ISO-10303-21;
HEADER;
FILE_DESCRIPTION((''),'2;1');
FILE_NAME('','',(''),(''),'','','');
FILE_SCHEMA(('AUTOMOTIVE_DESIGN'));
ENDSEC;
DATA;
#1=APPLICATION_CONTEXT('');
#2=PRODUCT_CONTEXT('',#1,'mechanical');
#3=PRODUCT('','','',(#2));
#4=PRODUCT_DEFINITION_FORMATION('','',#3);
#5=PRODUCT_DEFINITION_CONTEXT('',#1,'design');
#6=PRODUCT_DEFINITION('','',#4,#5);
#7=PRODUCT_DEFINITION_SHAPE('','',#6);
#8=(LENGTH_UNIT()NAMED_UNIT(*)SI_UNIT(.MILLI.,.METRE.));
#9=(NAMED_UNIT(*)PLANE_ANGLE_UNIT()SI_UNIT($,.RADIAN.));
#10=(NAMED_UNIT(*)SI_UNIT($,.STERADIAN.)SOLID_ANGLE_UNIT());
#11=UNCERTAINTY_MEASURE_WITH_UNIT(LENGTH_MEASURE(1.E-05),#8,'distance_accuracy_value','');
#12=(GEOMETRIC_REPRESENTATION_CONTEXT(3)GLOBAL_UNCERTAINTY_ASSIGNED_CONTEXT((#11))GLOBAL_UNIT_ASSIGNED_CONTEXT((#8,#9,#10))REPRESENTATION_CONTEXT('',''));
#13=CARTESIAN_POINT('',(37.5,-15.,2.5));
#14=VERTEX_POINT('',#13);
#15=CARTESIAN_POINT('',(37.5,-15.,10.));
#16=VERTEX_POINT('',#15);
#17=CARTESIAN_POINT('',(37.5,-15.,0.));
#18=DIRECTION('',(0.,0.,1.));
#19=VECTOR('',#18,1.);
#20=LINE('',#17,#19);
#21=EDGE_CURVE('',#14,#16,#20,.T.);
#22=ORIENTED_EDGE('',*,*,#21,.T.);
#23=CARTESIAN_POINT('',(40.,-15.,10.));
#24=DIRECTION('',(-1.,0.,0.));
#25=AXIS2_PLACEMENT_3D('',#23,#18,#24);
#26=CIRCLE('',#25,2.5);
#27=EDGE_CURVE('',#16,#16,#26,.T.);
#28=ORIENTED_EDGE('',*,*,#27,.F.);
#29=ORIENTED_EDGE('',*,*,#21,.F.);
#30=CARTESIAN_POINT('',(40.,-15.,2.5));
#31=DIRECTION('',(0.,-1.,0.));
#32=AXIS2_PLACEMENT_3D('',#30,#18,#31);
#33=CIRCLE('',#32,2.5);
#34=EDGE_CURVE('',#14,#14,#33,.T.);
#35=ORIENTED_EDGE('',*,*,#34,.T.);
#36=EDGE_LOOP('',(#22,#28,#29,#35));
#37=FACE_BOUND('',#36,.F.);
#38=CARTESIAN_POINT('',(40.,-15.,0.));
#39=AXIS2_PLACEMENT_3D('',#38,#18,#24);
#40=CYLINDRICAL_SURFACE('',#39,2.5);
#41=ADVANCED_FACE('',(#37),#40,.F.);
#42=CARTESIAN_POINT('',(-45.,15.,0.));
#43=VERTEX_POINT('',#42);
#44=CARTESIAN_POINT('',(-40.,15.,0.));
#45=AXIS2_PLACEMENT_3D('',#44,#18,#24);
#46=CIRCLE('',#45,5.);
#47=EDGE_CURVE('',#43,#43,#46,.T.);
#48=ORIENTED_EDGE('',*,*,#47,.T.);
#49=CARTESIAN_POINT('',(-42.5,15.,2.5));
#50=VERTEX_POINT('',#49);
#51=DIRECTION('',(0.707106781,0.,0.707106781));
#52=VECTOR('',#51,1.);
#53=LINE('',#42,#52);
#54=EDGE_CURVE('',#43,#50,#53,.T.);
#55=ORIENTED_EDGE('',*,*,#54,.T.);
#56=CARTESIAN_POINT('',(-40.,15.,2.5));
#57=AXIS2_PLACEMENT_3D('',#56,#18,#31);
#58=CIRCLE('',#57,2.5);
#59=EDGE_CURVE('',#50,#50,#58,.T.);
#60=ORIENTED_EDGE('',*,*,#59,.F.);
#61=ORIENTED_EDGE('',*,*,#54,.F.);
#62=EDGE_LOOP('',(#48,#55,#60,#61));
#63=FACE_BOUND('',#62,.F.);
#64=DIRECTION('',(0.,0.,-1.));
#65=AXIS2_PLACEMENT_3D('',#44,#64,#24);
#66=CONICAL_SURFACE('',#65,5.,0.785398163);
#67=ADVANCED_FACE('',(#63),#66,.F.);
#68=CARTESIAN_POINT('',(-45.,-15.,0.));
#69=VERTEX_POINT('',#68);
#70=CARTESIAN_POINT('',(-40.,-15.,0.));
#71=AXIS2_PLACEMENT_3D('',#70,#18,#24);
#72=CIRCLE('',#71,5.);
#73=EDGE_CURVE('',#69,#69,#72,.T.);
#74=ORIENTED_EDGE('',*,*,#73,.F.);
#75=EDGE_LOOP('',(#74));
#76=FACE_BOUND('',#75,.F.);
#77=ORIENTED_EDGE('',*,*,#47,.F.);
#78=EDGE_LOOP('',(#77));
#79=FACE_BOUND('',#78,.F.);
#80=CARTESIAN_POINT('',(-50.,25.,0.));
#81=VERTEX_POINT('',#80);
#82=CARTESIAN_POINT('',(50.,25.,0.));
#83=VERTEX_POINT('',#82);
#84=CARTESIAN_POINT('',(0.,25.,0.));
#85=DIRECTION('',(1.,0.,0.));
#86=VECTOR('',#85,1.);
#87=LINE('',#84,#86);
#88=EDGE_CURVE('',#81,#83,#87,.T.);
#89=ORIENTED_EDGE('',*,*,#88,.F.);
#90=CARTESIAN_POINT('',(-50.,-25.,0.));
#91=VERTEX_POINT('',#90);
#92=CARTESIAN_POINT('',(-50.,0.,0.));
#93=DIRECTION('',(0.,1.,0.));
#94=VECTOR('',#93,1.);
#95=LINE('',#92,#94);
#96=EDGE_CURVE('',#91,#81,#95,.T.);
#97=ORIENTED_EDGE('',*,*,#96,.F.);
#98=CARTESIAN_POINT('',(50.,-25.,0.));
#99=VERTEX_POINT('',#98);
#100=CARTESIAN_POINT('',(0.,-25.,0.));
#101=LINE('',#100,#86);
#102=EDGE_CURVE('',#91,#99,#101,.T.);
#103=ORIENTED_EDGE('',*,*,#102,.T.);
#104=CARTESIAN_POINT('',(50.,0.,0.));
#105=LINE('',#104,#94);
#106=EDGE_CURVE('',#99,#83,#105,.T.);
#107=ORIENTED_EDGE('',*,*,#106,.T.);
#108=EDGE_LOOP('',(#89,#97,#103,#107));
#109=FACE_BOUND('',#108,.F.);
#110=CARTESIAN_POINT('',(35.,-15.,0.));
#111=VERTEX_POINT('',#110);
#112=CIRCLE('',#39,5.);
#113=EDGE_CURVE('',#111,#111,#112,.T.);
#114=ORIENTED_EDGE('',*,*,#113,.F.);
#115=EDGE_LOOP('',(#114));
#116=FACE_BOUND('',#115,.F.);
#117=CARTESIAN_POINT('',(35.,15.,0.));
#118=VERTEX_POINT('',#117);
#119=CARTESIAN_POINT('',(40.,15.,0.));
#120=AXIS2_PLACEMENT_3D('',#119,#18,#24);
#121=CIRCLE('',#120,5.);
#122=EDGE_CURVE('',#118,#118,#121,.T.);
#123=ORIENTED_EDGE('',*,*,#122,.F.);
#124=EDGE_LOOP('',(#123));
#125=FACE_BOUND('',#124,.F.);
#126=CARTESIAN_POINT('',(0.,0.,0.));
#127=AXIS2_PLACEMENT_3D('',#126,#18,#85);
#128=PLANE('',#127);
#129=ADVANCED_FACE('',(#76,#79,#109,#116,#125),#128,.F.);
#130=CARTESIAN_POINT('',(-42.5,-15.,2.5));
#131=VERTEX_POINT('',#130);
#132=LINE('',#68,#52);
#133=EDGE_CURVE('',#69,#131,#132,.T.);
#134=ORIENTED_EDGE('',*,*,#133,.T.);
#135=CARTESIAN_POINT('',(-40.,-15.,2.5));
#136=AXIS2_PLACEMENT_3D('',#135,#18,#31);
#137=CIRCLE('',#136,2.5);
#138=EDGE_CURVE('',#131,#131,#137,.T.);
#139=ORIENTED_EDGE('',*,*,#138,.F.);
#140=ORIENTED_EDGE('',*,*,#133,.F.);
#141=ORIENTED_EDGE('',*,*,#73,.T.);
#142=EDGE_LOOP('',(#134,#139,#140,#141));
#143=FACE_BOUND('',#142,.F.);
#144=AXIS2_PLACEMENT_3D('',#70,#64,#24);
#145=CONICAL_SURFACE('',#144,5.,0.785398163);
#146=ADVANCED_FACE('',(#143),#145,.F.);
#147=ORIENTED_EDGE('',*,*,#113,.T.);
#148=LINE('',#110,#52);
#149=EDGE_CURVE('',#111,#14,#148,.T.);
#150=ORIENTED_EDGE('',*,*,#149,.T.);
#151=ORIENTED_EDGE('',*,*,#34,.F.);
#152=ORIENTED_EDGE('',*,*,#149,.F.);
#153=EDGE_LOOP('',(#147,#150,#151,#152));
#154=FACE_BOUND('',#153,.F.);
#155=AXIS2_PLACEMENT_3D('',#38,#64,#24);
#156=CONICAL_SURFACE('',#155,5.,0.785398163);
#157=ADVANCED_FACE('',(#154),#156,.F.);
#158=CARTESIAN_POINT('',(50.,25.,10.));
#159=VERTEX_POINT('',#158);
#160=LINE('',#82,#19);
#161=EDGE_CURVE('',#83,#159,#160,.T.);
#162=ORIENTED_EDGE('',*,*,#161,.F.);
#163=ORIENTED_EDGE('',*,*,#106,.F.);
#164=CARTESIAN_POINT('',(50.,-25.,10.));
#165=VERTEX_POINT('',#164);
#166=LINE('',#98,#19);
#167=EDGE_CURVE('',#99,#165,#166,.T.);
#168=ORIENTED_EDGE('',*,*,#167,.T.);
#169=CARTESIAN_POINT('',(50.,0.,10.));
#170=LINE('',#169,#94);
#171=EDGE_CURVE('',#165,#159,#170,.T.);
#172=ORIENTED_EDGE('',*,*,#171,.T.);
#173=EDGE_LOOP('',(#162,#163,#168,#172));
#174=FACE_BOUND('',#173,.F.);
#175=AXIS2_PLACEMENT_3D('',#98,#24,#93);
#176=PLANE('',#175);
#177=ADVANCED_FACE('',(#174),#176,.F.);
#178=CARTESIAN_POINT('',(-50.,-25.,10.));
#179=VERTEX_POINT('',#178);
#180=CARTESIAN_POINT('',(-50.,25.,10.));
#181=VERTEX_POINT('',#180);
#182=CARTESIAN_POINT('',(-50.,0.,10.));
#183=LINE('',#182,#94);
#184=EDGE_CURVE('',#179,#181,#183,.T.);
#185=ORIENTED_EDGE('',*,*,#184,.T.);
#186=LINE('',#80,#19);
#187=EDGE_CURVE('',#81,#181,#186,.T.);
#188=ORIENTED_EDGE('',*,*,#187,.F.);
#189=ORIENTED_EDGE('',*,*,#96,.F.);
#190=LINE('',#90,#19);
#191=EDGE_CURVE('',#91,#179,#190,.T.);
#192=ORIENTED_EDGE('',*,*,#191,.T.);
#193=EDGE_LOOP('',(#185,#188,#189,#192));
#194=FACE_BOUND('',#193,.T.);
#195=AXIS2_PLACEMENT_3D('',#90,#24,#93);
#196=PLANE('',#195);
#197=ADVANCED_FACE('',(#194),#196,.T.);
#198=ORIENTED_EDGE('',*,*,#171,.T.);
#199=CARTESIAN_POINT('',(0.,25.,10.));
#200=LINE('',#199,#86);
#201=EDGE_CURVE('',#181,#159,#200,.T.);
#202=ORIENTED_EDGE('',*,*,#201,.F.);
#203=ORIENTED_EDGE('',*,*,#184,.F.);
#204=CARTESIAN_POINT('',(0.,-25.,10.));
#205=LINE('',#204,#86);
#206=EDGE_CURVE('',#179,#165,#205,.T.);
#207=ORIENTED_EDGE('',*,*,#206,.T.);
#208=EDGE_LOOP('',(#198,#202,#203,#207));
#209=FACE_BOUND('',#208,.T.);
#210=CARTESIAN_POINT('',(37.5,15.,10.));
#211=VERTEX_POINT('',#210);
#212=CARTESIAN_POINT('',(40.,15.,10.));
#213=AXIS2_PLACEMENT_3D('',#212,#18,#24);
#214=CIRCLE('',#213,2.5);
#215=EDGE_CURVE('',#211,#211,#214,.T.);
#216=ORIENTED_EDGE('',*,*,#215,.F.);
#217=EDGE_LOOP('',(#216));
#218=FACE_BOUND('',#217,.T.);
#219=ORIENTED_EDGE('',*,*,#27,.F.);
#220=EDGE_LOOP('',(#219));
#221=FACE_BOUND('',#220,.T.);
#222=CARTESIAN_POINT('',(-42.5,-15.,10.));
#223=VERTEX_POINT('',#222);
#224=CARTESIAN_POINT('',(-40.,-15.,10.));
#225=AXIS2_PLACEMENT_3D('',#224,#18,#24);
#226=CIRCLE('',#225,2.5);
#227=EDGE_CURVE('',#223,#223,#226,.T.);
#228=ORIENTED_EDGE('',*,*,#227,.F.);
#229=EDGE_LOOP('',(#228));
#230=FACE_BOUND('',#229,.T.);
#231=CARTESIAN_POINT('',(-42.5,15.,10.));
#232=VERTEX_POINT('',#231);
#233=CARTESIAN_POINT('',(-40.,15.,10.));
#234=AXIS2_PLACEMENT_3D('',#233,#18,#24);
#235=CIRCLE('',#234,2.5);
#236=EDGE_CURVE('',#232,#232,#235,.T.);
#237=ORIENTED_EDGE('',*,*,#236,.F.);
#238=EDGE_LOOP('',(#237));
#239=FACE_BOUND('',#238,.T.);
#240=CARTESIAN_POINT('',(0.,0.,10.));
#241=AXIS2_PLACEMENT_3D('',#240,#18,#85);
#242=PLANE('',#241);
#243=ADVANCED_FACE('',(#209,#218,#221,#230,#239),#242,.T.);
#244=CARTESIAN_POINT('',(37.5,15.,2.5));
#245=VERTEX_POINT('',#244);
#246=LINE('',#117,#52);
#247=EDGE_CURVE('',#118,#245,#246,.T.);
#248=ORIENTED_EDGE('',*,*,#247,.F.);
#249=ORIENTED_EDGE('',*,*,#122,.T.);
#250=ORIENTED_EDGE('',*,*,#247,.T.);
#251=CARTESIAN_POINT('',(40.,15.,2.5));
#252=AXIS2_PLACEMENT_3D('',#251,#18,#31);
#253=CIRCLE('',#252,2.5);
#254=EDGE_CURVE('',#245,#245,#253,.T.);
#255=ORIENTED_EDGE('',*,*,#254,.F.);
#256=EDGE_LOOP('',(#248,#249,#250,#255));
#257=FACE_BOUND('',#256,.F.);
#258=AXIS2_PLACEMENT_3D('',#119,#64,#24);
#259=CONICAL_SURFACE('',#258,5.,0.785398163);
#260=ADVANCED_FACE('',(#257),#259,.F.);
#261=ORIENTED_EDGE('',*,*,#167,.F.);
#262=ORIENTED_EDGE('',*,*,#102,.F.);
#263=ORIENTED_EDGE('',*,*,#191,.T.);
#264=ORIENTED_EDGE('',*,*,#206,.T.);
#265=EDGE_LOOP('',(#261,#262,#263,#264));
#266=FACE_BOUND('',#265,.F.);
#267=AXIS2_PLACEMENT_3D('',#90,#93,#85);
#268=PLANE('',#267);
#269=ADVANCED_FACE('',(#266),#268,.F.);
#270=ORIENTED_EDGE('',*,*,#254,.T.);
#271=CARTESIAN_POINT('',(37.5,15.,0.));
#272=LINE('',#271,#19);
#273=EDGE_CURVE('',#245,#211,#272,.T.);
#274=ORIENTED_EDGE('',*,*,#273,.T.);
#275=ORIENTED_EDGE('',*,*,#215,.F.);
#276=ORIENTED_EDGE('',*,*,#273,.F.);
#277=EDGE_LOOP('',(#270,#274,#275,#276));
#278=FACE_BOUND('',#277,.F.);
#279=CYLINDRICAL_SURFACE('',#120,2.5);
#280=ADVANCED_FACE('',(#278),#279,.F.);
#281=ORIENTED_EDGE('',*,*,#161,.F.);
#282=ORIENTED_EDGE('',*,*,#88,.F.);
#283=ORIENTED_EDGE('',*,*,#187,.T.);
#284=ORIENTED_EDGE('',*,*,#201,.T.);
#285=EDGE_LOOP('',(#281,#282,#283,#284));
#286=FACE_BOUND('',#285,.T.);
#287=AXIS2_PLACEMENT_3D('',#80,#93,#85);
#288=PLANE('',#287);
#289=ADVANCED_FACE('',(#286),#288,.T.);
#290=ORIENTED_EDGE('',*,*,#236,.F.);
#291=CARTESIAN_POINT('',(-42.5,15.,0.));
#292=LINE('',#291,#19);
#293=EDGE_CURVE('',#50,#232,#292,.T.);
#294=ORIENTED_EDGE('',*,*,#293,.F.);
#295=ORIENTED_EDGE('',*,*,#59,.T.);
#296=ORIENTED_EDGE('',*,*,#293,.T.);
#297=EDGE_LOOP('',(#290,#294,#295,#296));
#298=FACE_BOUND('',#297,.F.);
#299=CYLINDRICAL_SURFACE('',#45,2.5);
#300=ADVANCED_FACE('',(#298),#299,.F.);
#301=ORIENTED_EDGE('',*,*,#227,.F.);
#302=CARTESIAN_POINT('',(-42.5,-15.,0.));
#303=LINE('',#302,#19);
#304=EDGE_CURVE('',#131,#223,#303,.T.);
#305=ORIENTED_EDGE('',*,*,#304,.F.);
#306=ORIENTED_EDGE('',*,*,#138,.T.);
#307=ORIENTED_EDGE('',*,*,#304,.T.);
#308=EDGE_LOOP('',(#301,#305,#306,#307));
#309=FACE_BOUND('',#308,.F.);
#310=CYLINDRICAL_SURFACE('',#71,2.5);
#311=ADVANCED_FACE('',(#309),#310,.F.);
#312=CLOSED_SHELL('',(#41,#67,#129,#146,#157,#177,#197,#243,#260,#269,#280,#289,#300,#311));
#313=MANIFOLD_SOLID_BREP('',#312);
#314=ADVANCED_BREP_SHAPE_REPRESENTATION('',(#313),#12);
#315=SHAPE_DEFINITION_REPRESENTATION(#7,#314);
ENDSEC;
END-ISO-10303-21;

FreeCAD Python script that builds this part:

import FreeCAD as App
import Part
import Sketcher

V = App.Vector

doc = App.newDocument("Part")
body = doc.addObject("PartDesign::Body", "Body")

sketch1 = doc.addObject("Sketcher::SketchObject", "Sketch")
body.addObject(sketch1)
sketch1.AttachmentSupport = (doc.XY_Plane, [""])
sketch1.MapMode = "FlatFace"
sketch1.addGeometry(Part.LineSegment(V(-50, 25, 0), V(-50, -25, 0)), False)
sketch1.addGeometry(Part.LineSegment(V(-50, -25, 0), V(50, -25, 0)), False)
sketch1.addGeometry(Part.LineSegment(V(50, -25, 0), V(50, 25, 0)), False)
sketch1.addGeometry(Part.LineSegment(V(50, 25, 0), V(-50, 25, 0)), False)
sketch1.addConstraint(Sketcher.Constraint("Coincident", 0, 2, 1, 1))
sketch1.addConstraint(Sketcher.Constraint("Coincident", 1, 2, 2, 1))
sketch1.addConstraint(Sketcher.Constraint("Coincident", 2, 2, 3, 1))
sketch1.addConstraint(Sketcher.Constraint("Coincident", 3, 2, 0, 1))
sketch1.addConstraint(Sketcher.Constraint("Vertical", 0))
sketch1.addConstraint(Sketcher.Constraint("Horizontal", 1))
sketch1.addConstraint(Sketcher.Constraint("Vertical", 2))
sketch1.addConstraint(Sketcher.Constraint("Horizontal", 3))
sketch1.addConstraint(Sketcher.Constraint("Symmetric", 0, 2, 2, 2, -1, 1))
sketch1.addConstraint(Sketcher.Constraint("DistanceX", 1, 1, 1, 2, 100.0))
sketch1.addConstraint(Sketcher.Constraint("DistanceY", 0, 2, 0, 1, 50.0))
pad1 = doc.addObject("PartDesign::Pad", "Pad")
body.addObject(pad1)
pad1.Profile = sketch1
pad1.Length = 10

sketch2 = doc.addObject("Sketcher::SketchObject", "Sketch001")
body.addObject(sketch2)
sketch2.AttachmentSupport = (doc.XY_Plane, [""])
sketch2.MapMode = "FlatFace"
sketch2.addGeometry(Part.Circle(V(-40, 15, 0), V(0, 0, 1), 2.5), False)
sketch2.addGeometry(Part.Circle(V(40, -15, 0), V(0, 0, 1), 2.5), False)
sketch2.addGeometry(Part.Circle(V(-40, -15, 0), V(0, 0, 1), 2.5), False)
sketch2.addGeometry(Part.Circle(V(40, 15, 0), V(0, 0, 1), 2.5), False)
sketch2.addConstraint(Sketcher.Constraint("Equal", 0, 1))
sketch2.addConstraint(Sketcher.Constraint("Equal", 1, 2))
sketch2.addConstraint(Sketcher.Constraint("Equal", 2, 3))
sketch2.addConstraint(Sketcher.Constraint("Symmetric", 0, 3, 1, 3, -1, 1))
sketch2.addConstraint(Sketcher.Constraint("Symmetric", 2, 3, 3, 3, -1, 1))
sketch2.addConstraint(Sketcher.Constraint("Symmetric", 1, 3, 2, 3, -2))
sketch2.addConstraint(Sketcher.Constraint("Diameter", 0, 5.0))
sketch2.addConstraint(Sketcher.Constraint("DistanceX", 0, 3, -1, 1, 40.0))
sketch2.addConstraint(Sketcher.Constraint("DistanceY", -1, 1, 0, 3, 15.0))
doc.recompute()
hole = doc.addObject("PartDesign::Hole", "Hole")
body.addObject(hole)
hole.Profile = sketch2
hole.ThreadType = "None"
hole.Diameter = 5
hole.DepthType = "ThroughAll"
hole.HoleCutType = "Countersink"
hole.HoleCutDiameter = 10
hole.HoleCutCountersinkAngle = 90
hole.Reversed = True

doc.recompute()
